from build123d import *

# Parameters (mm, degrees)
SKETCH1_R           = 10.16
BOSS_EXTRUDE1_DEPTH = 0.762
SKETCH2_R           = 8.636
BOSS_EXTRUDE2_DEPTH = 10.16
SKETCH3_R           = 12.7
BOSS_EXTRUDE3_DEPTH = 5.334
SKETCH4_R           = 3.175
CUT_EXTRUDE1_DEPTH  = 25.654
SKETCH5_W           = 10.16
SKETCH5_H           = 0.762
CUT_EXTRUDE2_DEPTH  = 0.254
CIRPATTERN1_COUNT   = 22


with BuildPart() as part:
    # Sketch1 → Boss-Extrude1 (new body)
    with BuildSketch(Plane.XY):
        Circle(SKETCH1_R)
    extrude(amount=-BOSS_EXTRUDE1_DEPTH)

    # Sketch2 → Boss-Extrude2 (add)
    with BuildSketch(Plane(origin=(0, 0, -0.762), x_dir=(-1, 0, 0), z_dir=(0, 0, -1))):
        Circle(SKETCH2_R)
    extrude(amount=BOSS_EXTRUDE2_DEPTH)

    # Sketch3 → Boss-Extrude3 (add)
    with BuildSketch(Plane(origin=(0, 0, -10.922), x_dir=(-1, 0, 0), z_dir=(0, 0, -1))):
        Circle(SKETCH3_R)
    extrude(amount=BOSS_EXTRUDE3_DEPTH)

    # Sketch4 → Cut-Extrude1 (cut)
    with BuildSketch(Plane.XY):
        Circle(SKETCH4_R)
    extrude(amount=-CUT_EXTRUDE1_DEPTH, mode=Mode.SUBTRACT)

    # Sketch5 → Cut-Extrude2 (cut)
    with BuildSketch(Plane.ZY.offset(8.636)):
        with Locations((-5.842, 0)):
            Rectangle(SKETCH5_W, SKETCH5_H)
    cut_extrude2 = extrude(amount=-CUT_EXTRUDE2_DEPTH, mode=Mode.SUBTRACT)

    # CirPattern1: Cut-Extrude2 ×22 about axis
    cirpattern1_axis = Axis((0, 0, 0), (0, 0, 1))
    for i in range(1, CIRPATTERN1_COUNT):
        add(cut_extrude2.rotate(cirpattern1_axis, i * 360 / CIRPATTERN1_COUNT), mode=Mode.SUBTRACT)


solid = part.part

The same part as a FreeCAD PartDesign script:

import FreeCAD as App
import Part
import Sketcher
Q = App.Units.Quantity


def add_polygon(sketch, points):
    """Adds a closed chain of lines whose ends are joined by coincident constraints."""
    first, n = sketch.GeometryCount, len(points)
    for a, b in zip(points, points[1:] + points[:1]):
        sketch.addGeometry(Part.LineSegment(App.Vector(*a, 0), App.Vector(*b, 0)), False)
    for i in range(n):
        sketch.addConstraint(Sketcher.Constraint("Coincident", first + i, 2, first + (i + 1) % n, 1))

doc = App.newDocument("Part")
body = doc.addObject("PartDesign::Body", "Body")

# Sketch on XY plane
sketch1 = body.newObject("Sketcher::SketchObject", "Sketch")
sketch1.AttachmentSupport = (doc.getObject("XY_Plane"), [""])
sketch1.MapMode = "FlatFace"
sketch1.addGeometry(Part.Circle(App.Vector(0, 0, 0), App.Vector(0, 0, 1), 10.16), False)
sketch1.addConstraint(Sketcher.Constraint("Coincident", 0, 3, -1, 1))
sketch1.addConstraint(Sketcher.Constraint("Diameter", 0, Q("0.8 in")))
pad1 = body.newObject("PartDesign::Pad", "Pad")
pad1.Profile = sketch1
pad1.Length = Q("0.03 in")
pad1.Reversed = True

# Sketch on XY plane
sketch2 = body.newObject("Sketcher::SketchObject", "Sketch001")
sketch2.AttachmentSupport = (doc.getObject("XY_Plane"), [""])
sketch2.MapMode = "FlatFace"
sketch2.AttachmentOffset = App.Placement(App.Vector(0, 0, -0.03 * 25.4), App.Rotation())
sketch2.addGeometry(Part.Circle(App.Vector(0, 0, 0), App.Vector(0, 0, 1), 8.636), False)
sketch2.addConstraint(Sketcher.Constraint("Coincident", 0, 3, -1, 1))
sketch2.addConstraint(Sketcher.Constraint("Diameter", 0, Q("0.68 in")))
pad2 = body.newObject("PartDesign::Pad", "Pad001")
pad2.Profile = sketch2
pad2.Length = Q("0.4 in")
pad2.Reversed = True

# Sketch on XY plane
sketch3 = body.newObject("Sketcher::SketchObject", "Sketch002")
sketch3.AttachmentSupport = (doc.getObject("XY_Plane"), [""])
sketch3.MapMode = "FlatFace"
sketch3.AttachmentOffset = App.Placement(App.Vector(0, 0, -0.43 * 25.4), App.Rotation())
sketch3.addGeometry(Part.Circle(App.Vector(0, 0, 0), App.Vector(0, 0, 1), 12.7), False)
sketch3.addConstraint(Sketcher.Constraint("Coincident", 0, 3, -1, 1))
sketch3.addConstraint(Sketcher.Constraint("Diameter", 0, Q("1 in")))
pad3 = body.newObject("PartDesign::Pad", "Pad002")
pad3.Profile = sketch3
pad3.Length = Q("0.21 in")
pad3.Reversed = True

# Sketch on XY plane
sketch4 = body.newObject("Sketcher::SketchObject", "Sketch003")
sketch4.AttachmentSupport = (doc.getObject("XY_Plane"), [""])
sketch4.MapMode = "FlatFace"
sketch4.addGeometry(Part.Circle(App.Vector(0, 0, 0), App.Vector(0, 0, 1), 3.175), False)
sketch4.addConstraint(Sketcher.Constraint("Coincident", 0, 3, -1, 1))
sketch4.addConstraint(Sketcher.Constraint("Diameter", 0, Q("0.25 in")))
pocket1 = body.newObject("PartDesign::Pocket", "Pocket")
pocket1.Profile = sketch4
pocket1.Length = Q("1.01 in")

# Sketch on YZ plane
sketch5 = body.newObject("Sketcher::SketchObject", "Sketch004")
sketch5.AttachmentSupport = (doc.getObject("YZ_Plane"), [""])
sketch5.MapMode = "FlatFace"
sketch5.AttachmentOffset = App.Placement(App.Vector(0, 0, -0.34 * 25.4), App.Rotation())
add_polygon(sketch5, [(0.381, -10.922), (-0.381, -10.922), (-0.381, -0.762), (0.381, -0.762)])  # lines 0-3
sketch5.addConstraint(Sketcher.Constraint("Horizontal", 0))
sketch5.addConstraint(Sketcher.Constraint("Vertical", 1))
sketch5.addConstraint(Sketcher.Constraint("Horizontal", 2))
sketch5.addConstraint(Sketcher.Constraint("Vertical", 3))
sketch5.addConstraint(Sketcher.Constraint("DistanceY", 1, 1, 1, 2, Q("0.4 in")))
sketch5.addConstraint(Sketcher.Constraint("DistanceX", 0, 2, 0, 1, Q("0.03 in")))
sketch5.addConstraint(Sketcher.Constraint("DistanceY", 0, 2, -1, 1, Q("0.43 in")))
sketch5.addConstraint(Sketcher.Constraint("DistanceX", 0, 2, -1, 1, Q("0.015 in")))
pocket2 = body.newObject("PartDesign::Pocket", "Pocket001")
pocket2.Profile = sketch5
pocket2.Length = Q("0.01 in")
pocket2.Reversed = True
doc.recompute()

polarpattern = body.newObject("PartDesign::PolarPattern", "PolarPattern")
polarpattern.Originals = [pocket2]
polarpattern.Axis = (doc.getObject("Z_Axis"), [""])
polarpattern.Angle = 360
polarpattern.Occurrences = 22
body.Tip = polarpattern

doc.recompute()
